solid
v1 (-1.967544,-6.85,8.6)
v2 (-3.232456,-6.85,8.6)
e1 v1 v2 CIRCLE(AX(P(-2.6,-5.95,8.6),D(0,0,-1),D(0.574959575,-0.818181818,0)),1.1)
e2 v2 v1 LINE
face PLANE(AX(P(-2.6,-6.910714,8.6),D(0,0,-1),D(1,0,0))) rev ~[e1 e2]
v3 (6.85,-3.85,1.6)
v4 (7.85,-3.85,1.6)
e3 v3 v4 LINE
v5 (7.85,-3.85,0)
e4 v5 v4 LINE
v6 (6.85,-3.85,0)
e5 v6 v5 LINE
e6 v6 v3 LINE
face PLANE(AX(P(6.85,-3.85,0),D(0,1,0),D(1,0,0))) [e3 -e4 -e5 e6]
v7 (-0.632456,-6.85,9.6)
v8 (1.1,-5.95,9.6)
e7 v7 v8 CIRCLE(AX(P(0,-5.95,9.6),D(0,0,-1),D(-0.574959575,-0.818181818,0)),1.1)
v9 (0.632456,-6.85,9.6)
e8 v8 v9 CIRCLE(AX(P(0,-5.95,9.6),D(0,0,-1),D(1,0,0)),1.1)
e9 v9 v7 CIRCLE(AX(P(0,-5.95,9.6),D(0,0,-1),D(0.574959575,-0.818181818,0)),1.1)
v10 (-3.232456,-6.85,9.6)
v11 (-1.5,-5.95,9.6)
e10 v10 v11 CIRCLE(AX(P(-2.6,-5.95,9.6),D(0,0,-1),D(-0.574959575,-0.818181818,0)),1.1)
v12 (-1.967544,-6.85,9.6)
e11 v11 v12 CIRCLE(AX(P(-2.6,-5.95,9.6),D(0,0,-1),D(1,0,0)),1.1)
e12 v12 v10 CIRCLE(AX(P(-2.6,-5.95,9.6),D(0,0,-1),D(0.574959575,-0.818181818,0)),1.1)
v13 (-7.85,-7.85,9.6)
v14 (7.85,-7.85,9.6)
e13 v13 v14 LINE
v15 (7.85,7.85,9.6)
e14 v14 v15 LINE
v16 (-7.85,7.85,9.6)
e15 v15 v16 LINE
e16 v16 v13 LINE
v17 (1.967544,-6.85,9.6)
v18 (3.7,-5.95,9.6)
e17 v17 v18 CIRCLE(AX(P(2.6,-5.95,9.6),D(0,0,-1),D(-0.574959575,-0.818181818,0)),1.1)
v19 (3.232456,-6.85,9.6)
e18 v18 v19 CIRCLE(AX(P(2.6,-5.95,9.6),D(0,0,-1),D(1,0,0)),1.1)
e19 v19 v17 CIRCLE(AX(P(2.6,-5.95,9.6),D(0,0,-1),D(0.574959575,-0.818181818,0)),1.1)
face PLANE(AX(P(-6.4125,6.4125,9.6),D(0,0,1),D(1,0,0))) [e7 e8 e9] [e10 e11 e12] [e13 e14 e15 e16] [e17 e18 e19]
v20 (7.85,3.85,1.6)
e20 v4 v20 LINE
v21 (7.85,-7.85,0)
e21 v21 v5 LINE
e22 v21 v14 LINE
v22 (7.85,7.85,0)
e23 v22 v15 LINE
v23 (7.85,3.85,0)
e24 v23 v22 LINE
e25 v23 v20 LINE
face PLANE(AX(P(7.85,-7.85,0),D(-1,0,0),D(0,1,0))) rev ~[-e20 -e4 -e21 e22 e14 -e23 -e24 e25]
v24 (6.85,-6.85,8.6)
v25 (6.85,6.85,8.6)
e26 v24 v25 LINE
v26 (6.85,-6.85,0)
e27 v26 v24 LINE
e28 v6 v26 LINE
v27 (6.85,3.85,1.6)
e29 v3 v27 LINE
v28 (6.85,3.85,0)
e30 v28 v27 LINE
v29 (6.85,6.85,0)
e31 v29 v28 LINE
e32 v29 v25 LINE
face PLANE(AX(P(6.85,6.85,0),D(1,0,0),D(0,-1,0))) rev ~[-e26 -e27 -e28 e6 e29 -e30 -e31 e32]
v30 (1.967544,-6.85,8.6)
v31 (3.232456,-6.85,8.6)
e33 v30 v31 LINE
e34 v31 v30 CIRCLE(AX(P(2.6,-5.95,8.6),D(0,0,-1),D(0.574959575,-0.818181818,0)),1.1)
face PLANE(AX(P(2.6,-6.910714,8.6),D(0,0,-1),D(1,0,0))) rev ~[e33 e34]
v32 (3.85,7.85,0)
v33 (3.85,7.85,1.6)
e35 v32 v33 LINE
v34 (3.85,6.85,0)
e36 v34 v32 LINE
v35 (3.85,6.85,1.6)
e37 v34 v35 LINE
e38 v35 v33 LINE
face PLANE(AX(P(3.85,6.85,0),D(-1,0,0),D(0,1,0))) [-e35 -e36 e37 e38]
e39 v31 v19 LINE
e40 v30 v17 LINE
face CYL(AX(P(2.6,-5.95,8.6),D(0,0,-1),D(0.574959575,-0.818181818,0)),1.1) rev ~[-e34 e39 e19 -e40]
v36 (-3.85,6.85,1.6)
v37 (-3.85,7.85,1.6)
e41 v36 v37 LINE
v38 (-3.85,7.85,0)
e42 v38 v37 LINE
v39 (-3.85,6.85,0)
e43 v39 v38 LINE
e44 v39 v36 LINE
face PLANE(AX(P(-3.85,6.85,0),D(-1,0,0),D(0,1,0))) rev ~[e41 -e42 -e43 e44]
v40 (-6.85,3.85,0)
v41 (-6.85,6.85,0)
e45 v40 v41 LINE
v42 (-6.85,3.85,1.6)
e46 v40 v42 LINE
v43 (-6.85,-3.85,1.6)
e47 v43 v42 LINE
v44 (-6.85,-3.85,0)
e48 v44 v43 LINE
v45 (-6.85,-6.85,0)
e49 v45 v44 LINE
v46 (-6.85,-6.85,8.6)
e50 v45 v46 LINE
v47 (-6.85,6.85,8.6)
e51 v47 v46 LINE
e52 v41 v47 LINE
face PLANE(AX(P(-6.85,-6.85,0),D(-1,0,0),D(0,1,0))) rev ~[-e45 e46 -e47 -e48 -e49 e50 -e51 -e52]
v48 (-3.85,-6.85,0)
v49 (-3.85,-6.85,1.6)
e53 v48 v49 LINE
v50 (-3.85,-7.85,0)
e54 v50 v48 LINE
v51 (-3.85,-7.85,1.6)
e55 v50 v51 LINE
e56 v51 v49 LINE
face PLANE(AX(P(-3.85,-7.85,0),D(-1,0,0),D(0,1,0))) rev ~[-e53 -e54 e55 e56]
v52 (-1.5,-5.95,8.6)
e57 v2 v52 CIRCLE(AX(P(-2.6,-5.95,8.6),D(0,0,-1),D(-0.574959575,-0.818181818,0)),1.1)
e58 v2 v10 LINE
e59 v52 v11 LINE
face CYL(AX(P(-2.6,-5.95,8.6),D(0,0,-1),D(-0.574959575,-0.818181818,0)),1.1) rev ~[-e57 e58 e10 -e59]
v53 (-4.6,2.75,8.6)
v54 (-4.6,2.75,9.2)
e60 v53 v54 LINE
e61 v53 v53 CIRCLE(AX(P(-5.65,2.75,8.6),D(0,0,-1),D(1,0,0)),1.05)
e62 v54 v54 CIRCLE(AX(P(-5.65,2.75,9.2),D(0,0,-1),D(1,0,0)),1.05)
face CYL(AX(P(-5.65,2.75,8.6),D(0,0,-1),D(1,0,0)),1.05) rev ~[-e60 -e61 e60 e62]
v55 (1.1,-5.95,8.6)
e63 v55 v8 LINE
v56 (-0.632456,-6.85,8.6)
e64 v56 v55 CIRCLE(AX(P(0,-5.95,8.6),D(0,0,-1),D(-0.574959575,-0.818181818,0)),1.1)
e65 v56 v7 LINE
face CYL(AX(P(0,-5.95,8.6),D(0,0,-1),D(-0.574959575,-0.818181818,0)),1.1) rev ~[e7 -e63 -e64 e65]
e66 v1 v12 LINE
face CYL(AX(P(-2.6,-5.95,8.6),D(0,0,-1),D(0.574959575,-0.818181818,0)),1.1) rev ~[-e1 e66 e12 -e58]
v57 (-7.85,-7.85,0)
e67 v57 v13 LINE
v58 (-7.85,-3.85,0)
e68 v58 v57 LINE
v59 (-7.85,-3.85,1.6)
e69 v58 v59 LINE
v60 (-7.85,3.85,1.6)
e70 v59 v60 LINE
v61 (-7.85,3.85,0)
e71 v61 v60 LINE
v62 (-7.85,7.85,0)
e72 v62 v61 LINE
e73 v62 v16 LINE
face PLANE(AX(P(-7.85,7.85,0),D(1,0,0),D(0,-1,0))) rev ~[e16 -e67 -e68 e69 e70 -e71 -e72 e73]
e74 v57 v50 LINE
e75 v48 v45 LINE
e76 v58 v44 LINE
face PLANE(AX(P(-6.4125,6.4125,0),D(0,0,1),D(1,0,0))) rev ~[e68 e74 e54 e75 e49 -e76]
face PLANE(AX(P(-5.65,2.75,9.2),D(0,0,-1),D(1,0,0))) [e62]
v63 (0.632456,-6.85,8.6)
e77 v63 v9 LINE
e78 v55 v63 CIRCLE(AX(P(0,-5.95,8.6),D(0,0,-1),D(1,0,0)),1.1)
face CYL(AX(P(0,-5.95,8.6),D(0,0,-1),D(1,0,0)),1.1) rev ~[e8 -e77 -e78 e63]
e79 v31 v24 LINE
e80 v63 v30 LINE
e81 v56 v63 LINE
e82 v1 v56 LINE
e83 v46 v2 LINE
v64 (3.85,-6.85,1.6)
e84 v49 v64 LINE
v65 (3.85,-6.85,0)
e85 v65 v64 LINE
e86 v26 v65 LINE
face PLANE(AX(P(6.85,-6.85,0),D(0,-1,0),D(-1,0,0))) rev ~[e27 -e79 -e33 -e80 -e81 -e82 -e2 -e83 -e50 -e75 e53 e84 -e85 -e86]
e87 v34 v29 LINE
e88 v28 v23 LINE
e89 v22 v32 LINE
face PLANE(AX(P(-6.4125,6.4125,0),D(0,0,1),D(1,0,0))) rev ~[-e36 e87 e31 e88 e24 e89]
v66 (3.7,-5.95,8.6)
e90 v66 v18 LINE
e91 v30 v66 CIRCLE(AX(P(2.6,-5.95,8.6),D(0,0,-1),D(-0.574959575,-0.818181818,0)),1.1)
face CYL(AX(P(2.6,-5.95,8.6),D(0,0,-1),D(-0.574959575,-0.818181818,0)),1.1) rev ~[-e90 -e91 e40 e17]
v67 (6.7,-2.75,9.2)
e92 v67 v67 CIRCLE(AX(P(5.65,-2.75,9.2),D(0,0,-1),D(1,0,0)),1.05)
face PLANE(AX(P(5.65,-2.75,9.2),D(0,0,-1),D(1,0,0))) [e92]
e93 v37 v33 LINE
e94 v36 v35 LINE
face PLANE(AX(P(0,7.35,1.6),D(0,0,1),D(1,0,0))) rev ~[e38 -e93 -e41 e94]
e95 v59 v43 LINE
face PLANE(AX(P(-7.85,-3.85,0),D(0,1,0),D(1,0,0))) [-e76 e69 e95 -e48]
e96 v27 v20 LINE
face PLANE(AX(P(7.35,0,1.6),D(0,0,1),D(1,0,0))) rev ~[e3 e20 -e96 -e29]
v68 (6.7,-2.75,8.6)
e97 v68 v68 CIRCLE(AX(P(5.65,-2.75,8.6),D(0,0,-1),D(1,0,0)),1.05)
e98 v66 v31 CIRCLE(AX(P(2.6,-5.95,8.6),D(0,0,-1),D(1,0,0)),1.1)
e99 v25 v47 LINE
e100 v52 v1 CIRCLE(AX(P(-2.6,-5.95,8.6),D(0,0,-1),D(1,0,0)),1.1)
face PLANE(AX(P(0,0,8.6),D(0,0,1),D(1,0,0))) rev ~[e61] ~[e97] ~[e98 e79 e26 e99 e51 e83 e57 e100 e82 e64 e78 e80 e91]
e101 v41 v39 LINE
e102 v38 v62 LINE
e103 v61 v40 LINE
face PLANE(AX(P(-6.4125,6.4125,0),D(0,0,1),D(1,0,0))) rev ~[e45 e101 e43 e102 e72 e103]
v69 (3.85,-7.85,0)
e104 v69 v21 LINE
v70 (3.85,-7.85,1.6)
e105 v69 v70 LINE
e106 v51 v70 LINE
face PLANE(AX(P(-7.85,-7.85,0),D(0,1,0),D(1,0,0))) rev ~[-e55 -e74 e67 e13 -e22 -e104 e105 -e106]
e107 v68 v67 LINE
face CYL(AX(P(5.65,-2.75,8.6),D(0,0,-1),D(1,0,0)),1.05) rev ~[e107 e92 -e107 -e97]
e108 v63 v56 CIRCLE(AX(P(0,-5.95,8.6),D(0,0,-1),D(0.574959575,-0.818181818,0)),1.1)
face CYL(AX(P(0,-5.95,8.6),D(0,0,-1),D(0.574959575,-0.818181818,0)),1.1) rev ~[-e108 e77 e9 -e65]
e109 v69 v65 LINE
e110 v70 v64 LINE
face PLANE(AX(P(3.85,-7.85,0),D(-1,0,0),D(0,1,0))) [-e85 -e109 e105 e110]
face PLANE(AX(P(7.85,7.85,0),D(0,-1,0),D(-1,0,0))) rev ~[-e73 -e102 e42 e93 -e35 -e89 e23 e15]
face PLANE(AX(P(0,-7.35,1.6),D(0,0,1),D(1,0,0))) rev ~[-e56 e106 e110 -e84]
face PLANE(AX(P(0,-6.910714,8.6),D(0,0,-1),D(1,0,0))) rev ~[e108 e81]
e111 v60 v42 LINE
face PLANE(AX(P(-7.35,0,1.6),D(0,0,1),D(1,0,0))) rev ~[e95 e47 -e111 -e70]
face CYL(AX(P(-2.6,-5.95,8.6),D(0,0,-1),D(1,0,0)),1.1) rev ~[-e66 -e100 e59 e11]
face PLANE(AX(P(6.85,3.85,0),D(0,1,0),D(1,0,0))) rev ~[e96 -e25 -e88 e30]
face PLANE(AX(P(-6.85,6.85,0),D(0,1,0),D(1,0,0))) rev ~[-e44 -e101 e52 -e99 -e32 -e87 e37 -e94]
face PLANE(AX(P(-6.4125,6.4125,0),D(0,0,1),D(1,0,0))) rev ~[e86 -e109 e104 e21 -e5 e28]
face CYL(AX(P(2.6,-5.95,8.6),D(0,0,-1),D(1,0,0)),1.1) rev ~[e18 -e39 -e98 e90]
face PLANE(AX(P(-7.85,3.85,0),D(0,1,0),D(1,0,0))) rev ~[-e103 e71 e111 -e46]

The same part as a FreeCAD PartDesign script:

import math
import FreeCAD as App
import Part
import Sketcher
from FreeCAD import Vector


def add_polygon(sketch, points):
    """Adds a closed chain of lines whose ends are joined by coincident constraints."""
    first, n = sketch.GeometryCount, len(points)
    for a, b in zip(points, points[1:] + points[:1]):
        sketch.addGeometry(Part.LineSegment(App.Vector(*a, 0), App.Vector(*b, 0)), False)
    for i in range(n):
        sketch.addConstraint(Sketcher.Constraint("Coincident", first + i, 2, first + (i + 1) % n, 1))

doc = App.newDocument("Part")
body = doc.addObject("PartDesign::Body", "Body")

sketch1 = body.newObject("Sketcher::SketchObject", "Sketch")
sketch1.AttachmentSupport = (doc.getObject("XY_Plane"), [""])
sketch1.MapMode = "FlatFace"
add_polygon(sketch1, [(-8, 8), (-8, -8), (8, -8), (8, 8)])
add_polygon(sketch1, [(-7, -7), (-7, 7), (7, 7), (7, -7)])
sketch1.addConstraint([
    Sketcher.Constraint("Vertical", 0),
    Sketcher.Constraint("Horizontal", 1),
    Sketcher.Constraint("Vertical", 2),
    Sketcher.Constraint("Horizontal", 3),
    Sketcher.Constraint("Vertical", 4),
    Sketcher.Constraint("Horizontal", 5),
    Sketcher.Constraint("Vertical", 6),
    Sketcher.Constraint("Horizontal", 7),
    Sketcher.Constraint("Symmetric", 0, 2, 2, 2, -1, 1),
    Sketcher.Constraint("Symmetric", 4, 2, 6, 2, -1, 1),
    Sketcher.Constraint("Equal", 3, 0),
    Sketcher.Constraint("Equal", 7, 4),
    Sketcher.Constraint("DistanceX", 1, 1, 1, 2, 15.7),
    Sketcher.Constraint("DistanceX", 5, 1, 5, 2, 13.7),
])
pad1 = body.newObject("PartDesign::Pad", "Pad")
pad1.Profile = sketch1
pad1.Length = 9.6

sketch2 = body.newObject("Sketcher::SketchObject", "Sketch001")
sketch2.AttachmentSupport = (doc.getObject("XY_Plane"), [""])
sketch2.MapMode = "FlatFace"
add_polygon(sketch2, [(-3.9, 7.8), (-3.9, 6.8), (3.9, 6.8), (3.9, 7.8)])
add_polygon(sketch2, [(6.8, 3.9), (6.8, -3.9), (7.8, -3.9), (7.8, 3.9)])
add_polygon(sketch2, [(-3.9, -6.8), (-3.9, -7.8), (3.9, -7.8), (3.9, -6.8)])
add_polygon(sketch2, [(-7.8, 3.9), (-7.8, -3.9), (-6.8, -3.9), (-6.8, 3.9)])
sketch2.addConstraint([
    Sketcher.Constraint("Vertical", 0),
    Sketcher.Constraint("Horizontal", 1),
    Sketcher.Constraint("Vertical", 2),
    Sketcher.Constraint("Horizontal", 3),
    Sketcher.Constraint("Vertical", 4),
    Sketcher.Constraint("Horizontal", 5),
    Sketcher.Constraint("Vertical", 6),
    Sketcher.Constraint("Horizontal", 7),
    Sketcher.Constraint("Vertical", 8),
    Sketcher.Constraint("Horizontal", 9),
    Sketcher.Constraint("Vertical", 10),
    Sketcher.Constraint("Horizontal", 11),
    Sketcher.Constraint("Vertical", 12),
    Sketcher.Constraint("Horizontal", 13),
    Sketcher.Constraint("Vertical", 14),
    Sketcher.Constraint("Horizontal", 15),
    Sketcher.Constraint("Symmetric", 2, 2, 8, 2, -1, 1),
    Sketcher.Constraint("Symmetric", 0, 2, 10, 2, -1, 1),
    Sketcher.Constraint("Symmetric", 6, 2, 12, 2, -1, 1),
    Sketcher.Constraint("Symmetric", 4, 2, 14, 2, -1, 1),
    Sketcher.Constraint("Horizontal", 5, 2, 12, 2),
    Sketcher.Constraint("Vertical", 3, 2, 8, 2),
    Sketcher.Constraint("Equal", 15, 0),
    Sketcher.Constraint("Equal", 11, 4),
    Sketcher.Constraint("DistanceX", 5, 1, 5, 2, 1.0),
    Sketcher.Constraint("DistanceX", 1, 1, 1, 2, 7.7),
    Sketcher.Constraint("DistanceX", 1, 2, 4, 2, 3.0),
    Sketcher.Constraint("DistanceY", 6, 2, 1, 2, 3.0),
])
pocket1 = body.newObject("PartDesign::Pocket", "Pocket")
pocket1.Profile = sketch2
pocket1.Length = 1.6
pocket1.Reversed = True

sketch3 = body.newObject("Sketcher::SketchObject", "Sketch002")
sketch3.AttachmentSupport = (doc.getObject("XY_Plane"), [""])
sketch3.MapMode = "FlatFace"
sketch3.AttachmentOffset = App.Placement(Vector(0, 0, 8.6), App.Rotation())
add_polygon(sketch3, [(-7, 7), (-7, -7), (7, -7), (7, 7)])
sketch3.addConstraint([
    Sketcher.Constraint("Vertical", 0),
    Sketcher.Constraint("Horizontal", 1),
    Sketcher.Constraint("Vertical", 2),
    Sketcher.Constraint("Horizontal", 3),
    Sketcher.Constraint("Symmetric", 0, 2, 2, 2, -1, 1),
    Sketcher.Constraint("Equal", 3, 0),
    Sketcher.Constraint("DistanceX", 1, 1, 1, 2, 13.7),
])
pad2 = body.newObject("PartDesign::Pad", "Pad001")
pad2.Profile = sketch3
pad2.Length = 1

sketch4 = body.newObject("Sketcher::SketchObject", "Sketch003")
sketch4.AttachmentSupport = (doc.getObject("XY_Plane"), [""])
sketch4.MapMode = "FlatFace"
sketch4.AttachmentOffset = App.Placement(Vector(0, 0, 8.6), App.Rotation())
sketch4.addGeometry([
    Part.Circle(Vector(-5.7, 2.8, 0), Vector(0, 0, 1), 1.1),
    Part.Circle(Vector(5.7, -2.8, 0), Vector(0, 0, 1), 1.1),
], False)
sketch4.addConstraint([
    Sketcher.Constraint("Equal", 0, 1),
    Sketcher.Constraint("Symmetric", 0, 3, 1, 3, -1, 1),
    Sketcher.Constraint("Diameter", 0, 2.1),
    Sketcher.Constraint("DistanceX", 0, 3, 1, 3, 11.3),
    Sketcher.Constraint("DistanceY", 1, 3, 0, 3, 5.5),
])
pocket2 = body.newObject("PartDesign::Pocket", "Pocket001")
pocket2.Profile = sketch4
pocket2.Length = 0.6
pocket2.Reversed = True

sketch5 = body.newObject("Sketcher::SketchObject", "Sketch004")
sketch5.AttachmentSupport = (doc.getObject("XY_Plane"), [""])
sketch5.MapMode = "FlatFace"
sketch5.AttachmentOffset = App.Placement(Vector(0, 0, 8.6), App.Rotation())
sketch5.addGeometry([
    Part.ArcOfCircle(Part.Circle(Vector(-2.6, -6, 0), Vector(0, 0, 1), 1.1), math.radians(-125), math.radians(-55)),
    Part.ArcOfCircle(Part.Circle(Vector(-2.6, -6, 0), Vector(0, 0, 1), 1.1), math.radians(0), math.radians(235)),
    Part.ArcOfCircle(Part.Circle(Vector(-2.6, -6, 0), Vector(0, 0, 1), 1.1), math.radians(-55), math.radians(0)),
    Part.ArcOfCircle(Part.Circle(Vector(0, -6, 0), Vector(0, 0, 1), 1.1), math.radians(-125), math.radians(-55)),
    Part.ArcOfCircle(Part.Circle(Vector(0, -6, 0), Vector(0, 0, 1), 1.1), math.radians(0), math.radians(235)),
    Part.ArcOfCircle(Part.Circle(Vector(0, -6, 0), Vector(0, 0, 1), 1.1), math.radians(-55), math.radians(0)),
    Part.ArcOfCircle(Part.Circle(Vector(2.6, -6, 0), Vector(0, 0, 1), 1.1), math.radians(-125), math.radians(-55)),
    Part.ArcOfCircle(Part.Circle(Vector(2.6, -6, 0), Vector(0, 0, 1), 1.1), math.radians(0), math.radians(235)),
    Part.ArcOfCircle(Part.Circle(Vector(2.6, -6, 0), Vector(0, 0, 1), 1.1), math.radians(-55), math.radians(0)),
], False)
sketch5.addConstraint([
    Sketcher.Constraint("Tangent", 0, 1, 1, 2),
    Sketcher.Constraint("Tangent", 1, 1, 2, 2),
    Sketcher.Constraint("Tangent", 2, 1, 0, 2),
    Sketcher.Constraint("Tangent", 3, 1, 4, 2),
    Sketcher.Constraint("Tangent", 4, 1, 5, 2),
    Sketcher.Constraint("Tangent", 5, 1, 3, 2),
    Sketcher.Constraint("Tangent", 6, 1, 7, 2),
    Sketcher.Constraint("Tangent", 7, 1, 8, 2),
    Sketcher.Constraint("Tangent", 8, 1, 6, 2),
    Sketcher.Constraint("Equal", 2, 3),
    Sketcher.Constraint("Equal", 5, 6),
    Sketcher.Constraint("Symmetric", 0, 3, 6, 3, -2),
    Sketcher.Constraint("Symmetric", 3, 1, 5, 1, -2),
    Sketcher.Constraint("Horizontal", 2, 3, 3, 3),
    Sketcher.Constraint("Horizontal", 8, 3, 1, 1),
    Sketcher.Constraint("Horizontal", 0, 1, 2, 1),
    Sketcher.Constraint("Horizontal", 2, 1, 3, 1),
    Sketcher.Constraint("Horizontal", 1, 1, 4, 1),
    Sketcher.Constraint("Horizontal", 5, 1, 6, 1),
    Sketcher.Constraint("Horizontal", 4, 1, 7, 1),
    Sketcher.Constraint("Horizontal", 6, 1, 8, 1),
    Sketcher.Constraint("Radius", 0, 1.1),
    Sketcher.Constraint("DistanceX", 0, 3, -1, 1, 2.6),
    Sketcher.Constraint("DistanceY", 0, 1, 0, 3, 0.9),
    Sketcher.Constraint("DistanceY", 0, 3, -1, 1, 5.95),
])
pocket3 = body.newObject("PartDesign::Pocket", "Pocket002")
pocket3.Profile = sketch5
pocket3.Type = "ThroughAll"
pocket3.Reversed = True

doc.recompute()
